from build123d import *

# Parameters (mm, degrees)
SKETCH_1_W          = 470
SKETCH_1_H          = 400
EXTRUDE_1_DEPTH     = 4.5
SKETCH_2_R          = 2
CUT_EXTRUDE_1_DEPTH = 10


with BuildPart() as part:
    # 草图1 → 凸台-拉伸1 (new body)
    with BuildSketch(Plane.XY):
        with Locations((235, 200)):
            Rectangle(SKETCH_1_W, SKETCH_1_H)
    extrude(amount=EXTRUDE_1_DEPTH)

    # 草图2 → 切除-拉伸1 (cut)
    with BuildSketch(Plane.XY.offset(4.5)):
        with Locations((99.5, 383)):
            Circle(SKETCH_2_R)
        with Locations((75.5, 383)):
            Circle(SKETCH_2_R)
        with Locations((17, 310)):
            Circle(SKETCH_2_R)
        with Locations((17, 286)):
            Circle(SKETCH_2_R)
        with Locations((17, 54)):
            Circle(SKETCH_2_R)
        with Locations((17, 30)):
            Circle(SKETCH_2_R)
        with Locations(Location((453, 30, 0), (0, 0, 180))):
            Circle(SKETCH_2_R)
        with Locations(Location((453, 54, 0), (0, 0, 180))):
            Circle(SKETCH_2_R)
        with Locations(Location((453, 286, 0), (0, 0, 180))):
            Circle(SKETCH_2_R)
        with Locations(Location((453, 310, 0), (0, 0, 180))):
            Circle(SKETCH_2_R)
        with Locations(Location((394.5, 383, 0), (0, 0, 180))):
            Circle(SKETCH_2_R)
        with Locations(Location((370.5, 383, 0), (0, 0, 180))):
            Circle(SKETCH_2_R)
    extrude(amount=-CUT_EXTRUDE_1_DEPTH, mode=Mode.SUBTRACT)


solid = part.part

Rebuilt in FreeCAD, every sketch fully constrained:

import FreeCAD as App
import Part
import Sketcher
Q = App.Units.Quantity

doc = App.newDocument("Part")
body = doc.addObject("PartDesign::Body", "Body")

sketch1 = body.newObject("Sketcher::SketchObject", "Sketch")
sketch1.AttachmentSupport = (doc.getObject("XY_Plane"), [""])
sketch1.MapMode = "FlatFace"
sketch1.addGeometry(Part.LineSegment(App.Vector(0, 400, 0), App.Vector(0, 0, 0)), False)
sketch1.addGeometry(Part.LineSegment(App.Vector(0, 0, 0), App.Vector(470, 0, 0)), False)
sketch1.addGeometry(Part.LineSegment(App.Vector(470, 0, 0), App.Vector(470, 400, 0)), False)
sketch1.addGeometry(Part.LineSegment(App.Vector(470, 400, 0), App.Vector(0, 400, 0)), False)
sketch1.addConstraint(Sketcher.Constraint("Coincident", 0, 2, 1, 1))
sketch1.addConstraint(Sketcher.Constraint("Coincident", 1, 2, 2, 1))
sketch1.addConstraint(Sketcher.Constraint("Coincident", 2, 2, 3, 1))
sketch1.addConstraint(Sketcher.Constraint("Coincident", 3, 2, 0, 1))
sketch1.addConstraint(Sketcher.Constraint("Vertical", 0))
sketch1.addConstraint(Sketcher.Constraint("Horizontal", 1))
sketch1.addConstraint(Sketcher.Constraint("Vertical", 2))
sketch1.addConstraint(Sketcher.Constraint("Horizontal", 3))
sketch1.addConstraint(Sketcher.Constraint("Coincident", 0, 2, -1, 1))
sketch1.addConstraint(Sketcher.Constraint("DistanceX", 1, 1, 1, 2, Q("470 mm")))
sketch1.addConstraint(Sketcher.Constraint("DistanceY", 0, 2, 0, 1, Q("400 mm")))
pad1 = body.newObject("PartDesign::Pad", "Pad")
pad1.Profile = sketch1
pad1.Length = 4.5

sketch2 = body.newObject("Sketcher::SketchObject", "Sketch001")
sketch2.AttachmentSupport = (doc.getObject("XY_Plane"), [""])
sketch2.MapMode = "FlatFace"
sketch2.AttachmentOffset = App.Placement(App.Vector(0, 0, 4.5), App.Rotation())
sketch2.addGeometry(Part.Circle(App.Vector(99.5, 383, 0), App.Vector(0, 0, 1), 2), False)
sketch2.addGeometry(Part.Circle(App.Vector(75.5, 383, 0), App.Vector(0, 0, 1), 2), False)
sketch2.addGeometry(Part.Circle(App.Vector(17, 310, 0), App.Vector(0, 0, 1), 2), False)
sketch2.addGeometry(Part.Circle(App.Vector(17, 286, 0), App.Vector(0, 0, 1), 2), False)
sketch2.addGeometry(Part.Circle(App.Vector(17, 54, 0), App.Vector(0, 0, 1), 2), False)
sketch2.addGeometry(Part.Circle(App.Vector(17, 30, 0), App.Vector(0, 0, 1), 2), False)
sketch2.addGeometry(Part.Circle(App.Vector(453, 30, 0), App.Vector(0, 0, 1), 2), False)
sketch2.addGeometry(Part.Circle(App.Vector(453, 54, 0), App.Vector(0, 0, 1), 2), False)
sketch2.addGeometry(Part.Circle(App.Vector(453, 286, 0), App.Vector(0, 0, 1), 2), False)
sketch2.addGeometry(Part.Circle(App.Vector(453, 310, 0), App.Vector(0, 0, 1), 2), False)
sketch2.addGeometry(Part.Circle(App.Vector(394.5, 383, 0), App.Vector(0, 0, 1), 2), False)
sketch2.addGeometry(Part.Circle(App.Vector(370.5, 383, 0), App.Vector(0, 0, 1), 2), False)
sketch2.addConstraint(Sketcher.Constraint("Equal", 0, 1))
sketch2.addConstraint(Sketcher.Constraint("Equal", 1, 2))
sketch2.addConstraint(Sketcher.Constraint("Equal", 2, 3))
sketch2.addConstraint(Sketcher.Constraint("Equal", 3, 4))
sketch2.addConstraint(Sketcher.Constraint("Equal", 4, 5))
sketch2.addConstraint(Sketcher.Constraint("Equal", 5, 6))
sketch2.addConstraint(Sketcher.Constraint("Equal", 6, 7))
sketch2.addConstraint(Sketcher.Constraint("Equal", 7, 8))
sketch2.addConstraint(Sketcher.Constraint("Equal", 8, 9))
sketch2.addConstraint(Sketcher.Constraint("Equal", 9, 10))
sketch2.addConstraint(Sketcher.Constraint("Equal", 10, 11))
sketch2.addConstraint(Sketcher.Constraint("Horizontal", 0, 3, 1, 3))
sketch2.addConstraint(Sketcher.Constraint("Horizontal", 5, 3, 6, 3))
sketch2.addConstraint(Sketcher.Constraint("Horizontal", 4, 3, 7, 3))
sketch2.addConstraint(Sketcher.Constraint("Horizontal", 3, 3, 8, 3))
sketch2.addConstraint(Sketcher.Constraint("Horizontal", 2, 3, 9, 3))
sketch2.addConstraint(Sketcher.Constraint("Horizontal", 1, 3, 10, 3))
sketch2.addConstraint(Sketcher.Constraint("Horizontal", 10, 3, 11, 3))
sketch2.addConstraint(Sketcher.Constraint("Vertical", 2, 3, 3, 3))
sketch2.addConstraint(Sketcher.Constraint("Vertical", 3, 3, 4, 3))
sketch2.addConstraint(Sketcher.Constraint("Vertical", 4, 3, 5, 3))
sketch2.addConstraint(Sketcher.Constraint("Vertical", 6, 3, 7, 3))
sketch2.addConstraint(Sketcher.Constraint("Vertical", 7, 3, 8, 3))
sketch2.addConstraint(Sketcher.Constraint("Vertical", 8, 3, 9, 3))
sketch2.addConstraint(Sketcher.Constraint("Diameter", 0, Q("4 mm")))
sketch2.addConstraint(Sketcher.Constraint("DistanceY", -1, 1, 0, 3, Q("383 mm")))
sketch2.addConstraint(Sketcher.Constraint("DistanceX", -1, 1, 2, 3, Q("17 mm")))
sketch2.addConstraint(Sketcher.Constraint("DistanceY", -1, 1, 2, 3, Q("310 mm")))
sketch2.addConstraint(Sketcher.Constraint("DistanceY", -1, 1, 3, 3, Q("286 mm")))
sketch2.addConstraint(Sketcher.Constraint("DistanceY", -1, 1, 4, 3, Q("54 mm")))
sketch2.addConstraint(Sketcher.Constraint("DistanceY", -1, 1, 5, 3, Q("30 mm")))
sketch2.addConstraint(Sketcher.Constraint("DistanceX", -1, 1, 6, 3, Q("453 mm")))
sketch2.addConstraint(Sketcher.Constraint("DistanceX", 1, 3, 0, 3, Q("24 mm")))
sketch2.addConstraint(Sketcher.Constraint("DistanceX", 0, 3, 10, 3, Q("295 mm")))
sketch2.addConstraint(Sketcher.Constraint("DistanceX", 11, 3, 10, 3, Q("24 mm")))
sketch2.addConstraint(Sketcher.Constraint("DistanceX", -1, 1, 0, 3, Q("99.5 mm")))
pocket1 = body.newObject("PartDesign::Pocket", "Pocket")
pocket1.Profile = sketch2
pocket1.Length = 10

doc.recompute()
